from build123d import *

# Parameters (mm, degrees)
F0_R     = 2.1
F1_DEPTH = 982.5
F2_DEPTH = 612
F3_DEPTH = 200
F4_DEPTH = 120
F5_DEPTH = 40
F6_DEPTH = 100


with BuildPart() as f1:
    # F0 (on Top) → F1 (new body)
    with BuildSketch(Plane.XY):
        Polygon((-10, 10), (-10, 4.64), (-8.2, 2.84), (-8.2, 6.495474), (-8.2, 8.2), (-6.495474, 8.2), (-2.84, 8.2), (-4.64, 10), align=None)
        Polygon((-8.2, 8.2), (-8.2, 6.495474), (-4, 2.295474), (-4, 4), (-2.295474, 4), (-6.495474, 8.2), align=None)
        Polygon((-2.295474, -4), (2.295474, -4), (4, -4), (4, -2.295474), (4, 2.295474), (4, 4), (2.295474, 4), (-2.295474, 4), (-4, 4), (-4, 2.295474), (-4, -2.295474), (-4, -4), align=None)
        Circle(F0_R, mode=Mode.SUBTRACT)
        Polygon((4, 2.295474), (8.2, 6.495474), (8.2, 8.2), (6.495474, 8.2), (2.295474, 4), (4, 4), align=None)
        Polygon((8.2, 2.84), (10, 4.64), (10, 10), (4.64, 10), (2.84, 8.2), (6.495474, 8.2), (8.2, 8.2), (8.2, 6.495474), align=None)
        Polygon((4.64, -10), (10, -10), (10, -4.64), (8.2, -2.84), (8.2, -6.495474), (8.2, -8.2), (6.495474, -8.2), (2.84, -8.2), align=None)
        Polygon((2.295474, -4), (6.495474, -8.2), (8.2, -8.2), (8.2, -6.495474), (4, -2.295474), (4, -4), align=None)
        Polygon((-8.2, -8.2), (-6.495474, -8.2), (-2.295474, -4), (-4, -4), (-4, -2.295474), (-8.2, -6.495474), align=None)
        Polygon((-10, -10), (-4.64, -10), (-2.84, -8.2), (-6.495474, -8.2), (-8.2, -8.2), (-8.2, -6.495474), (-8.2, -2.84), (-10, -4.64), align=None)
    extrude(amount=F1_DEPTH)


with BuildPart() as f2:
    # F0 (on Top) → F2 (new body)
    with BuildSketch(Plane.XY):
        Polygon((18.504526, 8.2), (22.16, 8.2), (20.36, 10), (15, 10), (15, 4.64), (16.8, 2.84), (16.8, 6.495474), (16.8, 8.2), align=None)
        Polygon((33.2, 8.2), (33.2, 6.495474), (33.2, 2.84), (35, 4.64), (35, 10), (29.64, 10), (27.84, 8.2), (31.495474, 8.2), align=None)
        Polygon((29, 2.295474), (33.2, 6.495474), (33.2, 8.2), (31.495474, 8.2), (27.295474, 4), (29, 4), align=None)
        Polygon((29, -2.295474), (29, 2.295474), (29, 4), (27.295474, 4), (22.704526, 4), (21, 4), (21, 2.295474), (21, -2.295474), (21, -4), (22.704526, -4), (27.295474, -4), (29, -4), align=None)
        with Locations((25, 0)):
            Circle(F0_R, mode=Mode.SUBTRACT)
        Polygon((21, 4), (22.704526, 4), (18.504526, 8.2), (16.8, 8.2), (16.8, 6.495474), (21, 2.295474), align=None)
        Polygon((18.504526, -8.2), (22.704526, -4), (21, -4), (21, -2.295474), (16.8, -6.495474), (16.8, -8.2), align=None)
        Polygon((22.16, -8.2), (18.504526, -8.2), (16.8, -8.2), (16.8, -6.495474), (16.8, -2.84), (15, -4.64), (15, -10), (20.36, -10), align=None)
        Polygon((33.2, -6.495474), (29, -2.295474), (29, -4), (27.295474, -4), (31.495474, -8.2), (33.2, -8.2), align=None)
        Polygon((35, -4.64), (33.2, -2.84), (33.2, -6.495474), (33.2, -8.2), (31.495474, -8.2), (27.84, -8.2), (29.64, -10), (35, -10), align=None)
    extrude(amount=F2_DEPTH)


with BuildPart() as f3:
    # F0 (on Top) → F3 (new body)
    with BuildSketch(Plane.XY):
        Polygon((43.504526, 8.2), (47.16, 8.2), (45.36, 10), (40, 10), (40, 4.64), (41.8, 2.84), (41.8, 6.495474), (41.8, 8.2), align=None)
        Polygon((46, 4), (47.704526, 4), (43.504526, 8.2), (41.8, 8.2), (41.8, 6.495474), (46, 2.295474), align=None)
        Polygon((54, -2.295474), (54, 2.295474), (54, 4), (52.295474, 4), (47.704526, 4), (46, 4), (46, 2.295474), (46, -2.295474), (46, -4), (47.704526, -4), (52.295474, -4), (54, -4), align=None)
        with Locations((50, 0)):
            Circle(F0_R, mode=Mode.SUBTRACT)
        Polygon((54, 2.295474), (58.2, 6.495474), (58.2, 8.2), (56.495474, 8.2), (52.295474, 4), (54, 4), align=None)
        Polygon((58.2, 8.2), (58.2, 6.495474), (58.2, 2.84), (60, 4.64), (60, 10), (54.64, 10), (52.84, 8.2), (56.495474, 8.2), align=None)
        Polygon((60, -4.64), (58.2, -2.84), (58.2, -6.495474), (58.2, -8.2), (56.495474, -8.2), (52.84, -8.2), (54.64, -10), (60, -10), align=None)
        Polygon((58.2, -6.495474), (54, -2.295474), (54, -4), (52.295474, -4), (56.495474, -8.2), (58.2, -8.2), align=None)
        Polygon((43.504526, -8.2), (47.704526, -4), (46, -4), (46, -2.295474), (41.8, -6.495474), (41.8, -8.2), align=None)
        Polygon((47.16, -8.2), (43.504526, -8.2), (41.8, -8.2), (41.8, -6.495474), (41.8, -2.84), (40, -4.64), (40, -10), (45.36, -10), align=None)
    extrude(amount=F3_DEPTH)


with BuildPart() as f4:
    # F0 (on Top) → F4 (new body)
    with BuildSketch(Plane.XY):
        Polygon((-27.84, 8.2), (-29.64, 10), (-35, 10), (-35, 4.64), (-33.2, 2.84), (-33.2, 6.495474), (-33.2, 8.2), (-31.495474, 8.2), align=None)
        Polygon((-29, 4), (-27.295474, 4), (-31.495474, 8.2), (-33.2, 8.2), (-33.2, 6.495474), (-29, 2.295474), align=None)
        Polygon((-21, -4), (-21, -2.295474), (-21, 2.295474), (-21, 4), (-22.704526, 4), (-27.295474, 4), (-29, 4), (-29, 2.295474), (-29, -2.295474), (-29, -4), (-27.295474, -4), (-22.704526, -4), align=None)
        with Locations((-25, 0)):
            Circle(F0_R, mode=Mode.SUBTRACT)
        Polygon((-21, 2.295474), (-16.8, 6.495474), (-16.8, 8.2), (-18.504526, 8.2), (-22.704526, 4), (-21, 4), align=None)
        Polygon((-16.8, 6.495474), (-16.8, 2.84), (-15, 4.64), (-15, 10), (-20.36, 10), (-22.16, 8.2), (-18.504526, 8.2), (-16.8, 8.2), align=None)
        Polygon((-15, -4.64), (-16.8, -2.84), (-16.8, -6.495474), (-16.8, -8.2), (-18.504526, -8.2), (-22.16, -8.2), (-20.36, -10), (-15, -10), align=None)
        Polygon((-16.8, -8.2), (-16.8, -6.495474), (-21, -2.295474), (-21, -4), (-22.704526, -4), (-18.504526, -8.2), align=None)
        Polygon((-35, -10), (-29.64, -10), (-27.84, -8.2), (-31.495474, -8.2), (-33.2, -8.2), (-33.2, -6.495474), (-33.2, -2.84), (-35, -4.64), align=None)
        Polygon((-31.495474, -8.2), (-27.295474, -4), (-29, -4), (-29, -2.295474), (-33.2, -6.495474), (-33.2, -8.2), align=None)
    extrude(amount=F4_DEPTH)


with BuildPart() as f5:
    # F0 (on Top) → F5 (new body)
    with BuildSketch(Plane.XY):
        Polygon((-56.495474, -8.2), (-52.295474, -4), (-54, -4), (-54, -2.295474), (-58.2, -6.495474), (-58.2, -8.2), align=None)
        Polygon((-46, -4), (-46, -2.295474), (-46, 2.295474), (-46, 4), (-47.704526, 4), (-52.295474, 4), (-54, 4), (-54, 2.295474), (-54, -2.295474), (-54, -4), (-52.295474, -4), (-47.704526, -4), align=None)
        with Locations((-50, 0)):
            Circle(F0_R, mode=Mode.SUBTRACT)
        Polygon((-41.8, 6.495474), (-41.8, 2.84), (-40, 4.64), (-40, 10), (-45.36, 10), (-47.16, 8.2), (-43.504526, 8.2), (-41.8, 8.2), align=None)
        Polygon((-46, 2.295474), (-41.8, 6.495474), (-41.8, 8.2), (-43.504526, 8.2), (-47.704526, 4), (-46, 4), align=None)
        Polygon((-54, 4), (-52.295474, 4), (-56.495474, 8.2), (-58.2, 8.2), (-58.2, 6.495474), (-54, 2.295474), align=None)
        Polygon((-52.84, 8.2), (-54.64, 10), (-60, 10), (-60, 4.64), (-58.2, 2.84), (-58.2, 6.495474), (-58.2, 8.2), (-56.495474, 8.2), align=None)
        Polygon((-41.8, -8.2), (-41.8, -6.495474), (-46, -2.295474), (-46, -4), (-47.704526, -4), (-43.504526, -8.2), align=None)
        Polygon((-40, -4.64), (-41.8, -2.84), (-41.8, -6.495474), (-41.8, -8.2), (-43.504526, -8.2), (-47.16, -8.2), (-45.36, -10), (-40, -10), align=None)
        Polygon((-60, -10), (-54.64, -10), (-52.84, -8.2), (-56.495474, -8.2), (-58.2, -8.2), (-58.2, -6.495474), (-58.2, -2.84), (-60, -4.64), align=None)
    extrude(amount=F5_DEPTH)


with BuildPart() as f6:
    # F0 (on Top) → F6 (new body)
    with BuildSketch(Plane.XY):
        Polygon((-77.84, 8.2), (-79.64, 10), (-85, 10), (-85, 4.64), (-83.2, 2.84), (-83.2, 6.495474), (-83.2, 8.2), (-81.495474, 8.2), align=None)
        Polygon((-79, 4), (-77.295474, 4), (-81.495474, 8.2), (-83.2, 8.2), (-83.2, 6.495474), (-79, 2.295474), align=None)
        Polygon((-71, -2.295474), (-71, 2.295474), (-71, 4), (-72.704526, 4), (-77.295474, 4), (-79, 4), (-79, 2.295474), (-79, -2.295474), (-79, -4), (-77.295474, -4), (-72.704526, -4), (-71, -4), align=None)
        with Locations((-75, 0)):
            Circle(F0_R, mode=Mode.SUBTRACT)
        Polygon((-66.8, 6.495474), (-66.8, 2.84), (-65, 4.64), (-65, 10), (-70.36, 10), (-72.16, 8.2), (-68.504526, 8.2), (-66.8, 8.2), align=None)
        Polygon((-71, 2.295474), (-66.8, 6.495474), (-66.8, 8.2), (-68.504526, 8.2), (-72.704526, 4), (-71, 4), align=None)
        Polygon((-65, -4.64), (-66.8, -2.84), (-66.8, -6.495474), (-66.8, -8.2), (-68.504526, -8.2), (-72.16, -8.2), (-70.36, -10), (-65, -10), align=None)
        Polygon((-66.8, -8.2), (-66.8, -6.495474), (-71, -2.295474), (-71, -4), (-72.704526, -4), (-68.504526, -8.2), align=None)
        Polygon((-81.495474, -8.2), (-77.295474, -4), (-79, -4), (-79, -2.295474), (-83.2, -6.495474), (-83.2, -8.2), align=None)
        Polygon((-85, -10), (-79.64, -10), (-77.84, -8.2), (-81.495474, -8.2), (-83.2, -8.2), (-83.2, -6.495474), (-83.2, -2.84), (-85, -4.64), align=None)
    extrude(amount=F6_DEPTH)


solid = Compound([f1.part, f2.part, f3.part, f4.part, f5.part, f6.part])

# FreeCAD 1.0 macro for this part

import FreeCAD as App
import Part
import Sketcher

V = App.Vector
Q = App.Units.Quantity


def add_polygon(sketch, points):
    """Adds a closed chain of lines whose ends are joined by coincident constraints."""
    first, n = sketch.GeometryCount, len(points)
    for a, b in zip(points, points[1:] + points[:1]):
        sketch.addGeometry(Part.LineSegment(App.Vector(*a, 0), App.Vector(*b, 0)), False)
    for i in range(n):
        sketch.addConstraint(Sketcher.Constraint("Coincident", first + i, 2, first + (i + 1) % n, 1))

doc = App.newDocument("Part")
params = doc.addObject("Spreadsheet::Sheet", "Params")
for row, (alias, value) in enumerate([
    ("sketch1_diameter", "4.2 mm"),
    ("sketch1_width", "5.36 mm"),
    ("pad1_length", "982.5 mm"),
    ("sketch2_diameter", "4.2 mm"),
    ("sketch2_width", "5.36 mm"),
    ("pad2_length", "612 mm"),
    ("sketch3_diameter", "4.2 mm"),
    ("sketch3_width", "5.36 mm"),
    ("pad3_length", "200 mm"),
    ("sketch4_diameter", "4.2 mm"),
    ("sketch4_width", "5.36 mm"),
    ("pad4_length", "120 mm"),
    ("sketch5_diameter", "4.2 mm"),
    ("sketch5_width", "5.36 mm"),
    ("pad5_length", "40 mm"),
    ("sketch6_diameter", "4.2 mm"),
    ("sketch6_width", "5.36 mm"),
    ("pad6_length", "100 mm"),
], start=1):
    params.set(f"A{row}", alias)
    params.set(f"B{row}", "=" + value)
    params.setAlias(f"B{row}", alias)

body = doc.addObject("PartDesign::Body", "Body")

sketch1 = body.newObject("Sketcher::SketchObject", "Sketch")
sketch1.AttachmentSupport = (doc.getObject("XY_Plane"), [""])
sketch1.MapMode = "FlatFace"
add_polygon(sketch1, [(-10, 10), (-10, 4.6), (-8.2, 2.8), (-8.2, 6.5), (-4, 2.3), (-4, -2.3), (-8.2, -6.5), (-8.2, -2.8), (-10, -4.6), (-10, -10), (-4.6, -10), (-2.8, -8.2), (-6.5, -8.2), (-2.3, -4), (2.3, -4), (6.5, -8.2), (2.8, -8.2), (4.6, -10), (10, -10), (10, -4.6), (8.2, -2.8), (8.2, -6.5), (4, -2.3), (4, 2.3), (8.2, 6.5), (8.2, 2.8), (10, 4.6), (10, 10), (4.6, 10), (2.8, 8.2), (6.5, 8.2), (2.3, 4), (-2.3, 4), (-6.5, 8.2), (-2.8, 8.2), (-4.6, 10)])
sketch1.addGeometry(Part.Circle(V(0, 0, 0), V(0, 0, 1), 2.1), False)
sketch1.addConstraint(Sketcher.Constraint("Vertical", 0))
sketch1.addConstraint(Sketcher.Constraint("Vertical", 2))
sketch1.addConstraint(Sketcher.Constraint("Vertical", 4))
sketch1.addConstraint(Sketcher.Constraint("Vertical", 6))
sketch1.addConstraint(Sketcher.Constraint("Vertical", 8))
sketch1.addConstraint(Sketcher.Constraint("Horizontal", 9))
sketch1.addConstraint(Sketcher.Constraint("Horizontal", 11))
sketch1.addConstraint(Sketcher.Constraint("Horizontal", 13))
sketch1.addConstraint(Sketcher.Constraint("Horizontal", 15))
sketch1.addConstraint(Sketcher.Constraint("Horizontal", 17))
sketch1.addConstraint(Sketcher.Constraint("Vertical", 18))
sketch1.addConstraint(Sketcher.Constraint("Vertical", 20))
sketch1.addConstraint(Sketcher.Constraint("Vertical", 22))
sketch1.addConstraint(Sketcher.Constraint("Vertical", 24))
sketch1.addConstraint(Sketcher.Constraint("Vertical", 26))
sketch1.addConstraint(Sketcher.Constraint("Horizontal", 27))
sketch1.addConstraint(Sketcher.Constraint("Horizontal", 29))
sketch1.addConstraint(Sketcher.Constraint("Horizontal", 31))
sketch1.addConstraint(Sketcher.Constraint("Horizontal", 33))
sketch1.addConstraint(Sketcher.Constraint("Horizontal", 35))
sketch1.addConstraint(Sketcher.Constraint("Coincident", 36, 3, -1, 1))
sketch1.addConstraint(Sketcher.Constraint("Symmetric", 0, 2, 18, 2, -1, 1))
sketch1.addConstraint(Sketcher.Constraint("Symmetric", 1, 2, 19, 2, -1, 1))
sketch1.addConstraint(Sketcher.Constraint("Symmetric", 3, 2, 21, 2, -1, 1))
sketch1.addConstraint(Sketcher.Constraint("Symmetric", 5, 2, 23, 2, -1, 1))
sketch1.addConstraint(Sketcher.Constraint("Symmetric", 7, 2, 25, 2, -1, 1))
sketch1.addConstraint(Sketcher.Constraint("Symmetric", 9, 2, 27, 2, -1, 1))
sketch1.addConstraint(Sketcher.Constraint("Symmetric", 10, 2, 28, 2, -1, 1))
sketch1.addConstraint(Sketcher.Constraint("Symmetric", 12, 2, 30, 2, -1, 1))
sketch1.addConstraint(Sketcher.Constraint("Symmetric", 14, 2, 32, 2, -1, 1))
sketch1.addConstraint(Sketcher.Constraint("Symmetric", 16, 2, 34, 2, -1, 1))
sketch1.addConstraint(Sketcher.Constraint("Symmetric", 11, 2, 14, 2, -2))
sketch1.addConstraint(Sketcher.Constraint("Symmetric", 9, 2, 16, 2, -2))
sketch1.addConstraint(Sketcher.Constraint("Symmetric", 7, 2, 18, 2, -2))
sketch1.addConstraint(Sketcher.Constraint("Symmetric", 6, 2, 19, 2, -2))
sketch1.addConstraint(Sketcher.Constraint("Parallel", 1, 3))
sketch1.addConstraint(Sketcher.Constraint("Perpendicular", 3, 5))
sketch1.addConstraint(Sketcher.Constraint("Parallel", 5, 7))
sketch1.addConstraint(Sketcher.Constraint("Parallel", 7, 10))
sketch1.addConstraint(Sketcher.Constraint("Parallel", 10, 12))
sketch1.addConstraint(Sketcher.Constraint("Perpendicular", 12, 14))
sketch1.addConstraint(Sketcher.Constraint("Parallel", 14, 16))
sketch1.addConstraint(Sketcher.Constraint("Parallel", 19, 21))
sketch1.addConstraint(Sketcher.Constraint("Perpendicular", 21, 23))
sketch1.addConstraint(Sketcher.Constraint("Parallel", 23, 25))
sketch1.addConstraint(Sketcher.Constraint("Parallel", 28, 30))
sketch1.addConstraint(Sketcher.Constraint("Perpendicular", 30, 32))
sketch1.addConstraint(Sketcher.Constraint("Parallel", 32, 34))
sketch1.addConstraint(Sketcher.Constraint("Horizontal", 5, 2, 20, 2))
sketch1.addConstraint(Sketcher.Constraint("Equal", 35, 0))
sketch1.addConstraint(Sketcher.Constraint("Equal", 33, 2))
sketch1.addConstraint(Sketcher.Constraint("Equal", 31, 4))
sketch1.addConstraint(Sketcher.Constraint("Equal", 7, 10))
sketch1.addConstraint(Sketcher.Constraint("Equal", 5, 12))
sketch1.addConstraint(Sketcher.Constraint("Diameter", 36, Q("4.2 mm")))
sketch1.addConstraint(Sketcher.Constraint("DistanceX", 0, 2, -1, 1, Q("10 mm")))
sketch1.addConstraint(Sketcher.Constraint("DistanceX", 3, 2, -1, 1, Q("4 mm")))
sketch1.addConstraint(Sketcher.Constraint("DistanceX", 9, 1, 9, 2, Q("5.36 mm")))
sketch1.addConstraint(Sketcher.Constraint("DistanceX", 1, 2, -1, 1, Q("8.2 mm")))
sketch1.addConstraint(Sketcher.Constraint("DistanceX", 11, 2, 11, 1, Q("3.655474 mm")))
sketch1.setExpression("Constraints[90]", "Params.sketch1_diameter")
sketch1.setExpression("Constraints[93]", "Params.sketch1_width")
pad1 = body.newObject("PartDesign::Pad", "Pad")
pad1.Profile = sketch1
pad1.setExpression("Length", "Params.pad1_length")
body2 = doc.addObject("PartDesign::Body", "Body001")

sketch2 = body2.newObject("Sketcher::SketchObject", "Sketch001")
sketch2.AttachmentSupport = (doc.getObject("XY_Plane001"), [""])
sketch2.MapMode = "FlatFace"
add_polygon(sketch2, [(22.2, 8.2), (20.4, 10), (15, 10), (15, 4.6), (16.8, 2.8), (16.8, 6.5), (21, 2.3), (21, -2.3), (16.8, -6.5), (16.8, -2.8), (15, -4.6), (15, -10), (20.4, -10), (22.2, -8.2), (18.5, -8.2), (22.7, -4), (27.3, -4), (31.5, -8.2), (27.8, -8.2), (29.6, -10), (35, -10), (35, -4.6), (33.2, -2.8), (33.2, -6.5), (29, -2.3), (29, 2.3), (33.2, 6.5), (33.2, 2.8), (35, 4.6), (35, 10), (29.6, 10), (27.8, 8.2), (31.5, 8.2), (27.3, 4), (22.7, 4), (18.5, 8.2)])
sketch2.addGeometry(Part.Circle(V(25, 0, 0), V(0, 0, 1), 2.1), False)
sketch2.addConstraint(Sketcher.Constraint("Horizontal", 1))
sketch2.addConstraint(Sketcher.Constraint("Vertical", 2))
sketch2.addConstraint(Sketcher.Constraint("Vertical", 4))
sketch2.addConstraint(Sketcher.Constraint("Vertical", 6))
sketch2.addConstraint(Sketcher.Constraint("Vertical", 8))
sketch2.addConstraint(Sketcher.Constraint("Vertical", 10))
sketch2.addConstraint(Sketcher.Constraint("Horizontal", 11))
sketch2.addConstraint(Sketcher.Constraint("Horizontal", 13))
sketch2.addConstraint(Sketcher.Constraint("Horizontal", 15))
sketch2.addConstraint(Sketcher.Constraint("Horizontal", 17))
sketch2.addConstraint(Sketcher.Constraint("Horizontal", 19))
sketch2.addConstraint(Sketcher.Constraint("Vertical", 20))
sketch2.addConstraint(Sketcher.Constraint("Vertical", 22))
sketch2.addConstraint(Sketcher.Constraint("Vertical", 24))
sketch2.addConstraint(Sketcher.Constraint("Vertical", 26))
sketch2.addConstraint(Sketcher.Constraint("Vertical", 28))
sketch2.addConstraint(Sketcher.Constraint("Horizontal", 29))
sketch2.addConstraint(Sketcher.Constraint("Horizontal", 31))
sketch2.addConstraint(Sketcher.Constraint("Horizontal", 33))
sketch2.addConstraint(Sketcher.Constraint("Horizontal", 35))
sketch2.addConstraint(Sketcher.Constraint("Symmetric", 4, 2, 7, 2, -1))
sketch2.addConstraint(Sketcher.Constraint("Symmetric", 2, 2, 9, 2, -1))
sketch2.addConstraint(Sketcher.Constraint("Symmetric", 0, 2, 11, 2, -1))
sketch2.addConstraint(Sketcher.Constraint("Symmetric", 22, 2, 25, 2, -1))
sketch2.addConstraint(Sketcher.Constraint("Symmetric", 20, 2, 27, 2, -1))
sketch2.addConstraint(Sketcher.Constraint("Symmetric", 18, 2, 29, 2, -1))
sketch2.addConstraint(Sketcher.Constraint("Symmetric", 17, 2, 30, 2, -1))
sketch2.addConstraint(Sketcher.Constraint("Symmetric", 15, 2, 32, 2, -1))
sketch2.addConstraint(Sketcher.Constraint("Symmetric", 13, 2, 34, 2, -1))
sketch2.addConstraint(Sketcher.Constraint("PointOnObject", 36, 3, -1))
sketch2.addConstraint(Sketcher.Constraint("Parallel", 0, 3))
sketch2.addConstraint(Sketcher.Constraint("Parallel", 3, 5))
sketch2.addConstraint(Sketcher.Constraint("Perpendicular", 5, 7))
sketch2.addConstraint(Sketcher.Constraint("Parallel", 7, 9))
sketch2.addConstraint(Sketcher.Constraint("Parallel", 9, 12))
sketch2.addConstraint(Sketcher.Constraint("Parallel", 12, 14))
sketch2.addConstraint(Sketcher.Constraint("Perpendicular", 14, 16))
sketch2.addConstraint(Sketcher.Constraint("Parallel", 16, 18))
sketch2.addConstraint(Sketcher.Constraint("Parallel", 18, 21))
sketch2.addConstraint(Sketcher.Constraint("Parallel", 21, 23))
sketch2.addConstraint(Sketcher.Constraint("Perpendicular", 23, 25))
sketch2.addConstraint(Sketcher.Constraint("Parallel", 25, 27))
sketch2.addConstraint(Sketcher.Constraint("Parallel", 27, 30))
sketch2.addConstraint(Sketcher.Constraint("Parallel", 30, 32))
sketch2.addConstraint(Sketcher.Constraint("Perpendicular", 32, 34))
sketch2.addConstraint(Sketcher.Constraint("Horizontal", 13, 2, 16, 2))
sketch2.addConstraint(Sketcher.Constraint("Horizontal", 11, 2, 18, 2))
sketch2.addConstraint(Sketcher.Constraint("Horizontal", 9, 2, 20, 2))
sketch2.addConstraint(Sketcher.Constraint("Horizontal", 8, 2, 21, 2))
sketch2.addConstraint(Sketcher.Constraint("Horizontal", 7, 2, 22, 2))
sketch2.addConstraint(Sketcher.Constraint("Horizontal", 6, 2, 23, 2))
sketch2.addConstraint(Sketcher.Constraint("Equal", 13, 17))
sketch2.addConstraint(Sketcher.Constraint("Equal", 11, 19))
sketch2.addConstraint(Sketcher.Constraint("Equal", 29, 2))
sketch2.addConstraint(Sketcher.Constraint("Equal", 35, 4))
sketch2.addConstraint(Sketcher.Constraint("Equal", 33, 6))
sketch2.addConstraint(Sketcher.Constraint("Equal", 0, 3))
sketch2.addConstraint(Sketcher.Constraint("Equal", 7, 14))
sketch2.addConstraint(Sketcher.Constraint("Diameter", 36, Q("4.2 mm")))
sketch2.addConstraint(Sketcher.Constraint("DistanceX", -1, 1, 36, 3, Q("25 mm")))
sketch2.addConstraint(Sketcher.Constraint("DistanceY", -1, 1, 0, 2, Q("10 mm")))
sketch2.addConstraint(Sketcher.Constraint("DistanceX", -1, 1, 1, 2, Q("15 mm")))
sketch2.addConstraint(Sketcher.Constraint("DistanceX", -1, 1, 5, 2, Q("21 mm")))
sketch2.addConstraint(Sketcher.Constraint("DistanceX", 1, 2, 1, 1, Q("5.36 mm")))
sketch2.addConstraint(Sketcher.Constraint("DistanceX", -1, 1, 3, 2, Q("16.8 mm")))
sketch2.addConstraint(Sketcher.Constraint("DistanceX", 13, 2, 13, 1, Q("3.655474 mm")))
sketch2.setExpression("Constraints[94]", "Params.sketch2_diameter")
sketch2.setExpression("Constraints[99]", "Params.sketch2_width")
pad2 = body2.newObject("PartDesign::Pad", "Pad001")
pad2.Profile = sketch2
pad2.setExpression("Length", "Params.pad2_length")
body3 = doc.addObject("PartDesign::Body", "Body002")

sketch3 = body3.newObject("Sketcher::SketchObject", "Sketch002")
sketch3.AttachmentSupport = (doc.getObject("XY_Plane002"), [""])
sketch3.MapMode = "FlatFace"
add_polygon(sketch3, [(47.2, 8.2), (45.4, 10), (40, 10), (40, 4.6), (41.8, 2.8), (41.8, 6.5), (46, 2.3), (46, -2.3), (41.8, -6.5), (41.8, -2.8), (40, -4.6), (40, -10), (45.4, -10), (47.2, -8.2), (43.5, -8.2), (47.7, -4), (52.3, -4), (56.5, -8.2), (52.8, -8.2), (54.6, -10), (60, -10), (60, -4.6), (58.2, -2.8), (58.2, -6.5), (54, -2.3), (54, 2.3), (58.2, 6.5), (58.2, 2.8), (60, 4.6), (60, 10), (54.6, 10), (52.8, 8.2), (56.5, 8.2), (52.3, 4), (47.7, 4), (43.5, 8.2)])
sketch3.addGeometry(Part.Circle(V(50, 0, 0), V(0, 0, 1), 2.1), False)
sketch3.addConstraint(Sketcher.Constraint("Horizontal", 1))
sketch3.addConstraint(Sketcher.Constraint("Vertical", 2))
sketch3.addConstraint(Sketcher.Constraint("Vertical", 4))
sketch3.addConstraint(Sketcher.Constraint("Vertical", 6))
sketch3.addConstraint(Sketcher.Constraint("Vertical", 8))
sketch3.addConstraint(Sketcher.Constraint("Vertical", 10))
sketch3.addConstraint(Sketcher.Constraint("Horizontal", 11))
sketch3.addConstraint(Sketcher.Constraint("Horizontal", 13))
sketch3.addConstraint(Sketcher.Constraint("Horizontal", 15))
sketch3.addConstraint(Sketcher.Constraint("Horizontal", 17))
sketch3.addConstraint(Sketcher.Constraint("Horizontal", 19))
sketch3.addConstraint(Sketcher.Constraint("Vertical", 20))
sketch3.addConstraint(Sketcher.Constraint("Vertical", 22))
sketch3.addConstraint(Sketcher.Constraint("Vertical", 24))
sketch3.addConstraint(Sketcher.Constraint("Vertical", 26))
sketch3.addConstraint(Sketcher.Constraint("Vertical", 28))
sketch3.addConstraint(Sketcher.Constraint("Horizontal", 29))
sketch3.addConstraint(Sketcher.Constraint("Horizontal", 31))
sketch3.addConstraint(Sketcher.Constraint("Horizontal", 33))
sketch3.addConstraint(Sketcher.Constraint("Horizontal", 35))
sketch3.addConstraint(Sketcher.Constraint("Symmetric", 4, 2, 7, 2, -1))
sketch3.addConstraint(Sketcher.Constraint("Symmetric", 2, 2, 9, 2, -1))
sketch3.addConstraint(Sketcher.Constraint("Symmetric", 0, 2, 11, 2, -1))
sketch3.addConstraint(Sketcher.Constraint("Symmetric", 22, 2, 25, 2, -1))
sketch3.addConstraint(Sketcher.Constraint("Symmetric", 20, 2, 27, 2, -1))
sketch3.addConstraint(Sketcher.Constraint("Symmetric", 18, 2, 29, 2, -1))
sketch3.addConstraint(Sketcher.Constraint("Symmetric", 17, 2, 30, 2, -1))
sketch3.addConstraint(Sketcher.Constraint("Symmetric", 15, 2, 32, 2, -1))
sketch3.addConstraint(Sketcher.Constraint("Symmetric", 13, 2, 34, 2, -1))
sketch3.addConstraint(Sketcher.Constraint("PointOnObject", 36, 3, -1))
sketch3.addConstraint(Sketcher.Constraint("Parallel", 0, 3))
sketch3.addConstraint(Sketcher.Constraint("Parallel", 3, 5))
sketch3.addConstraint(Sketcher.Constraint("Perpendicular", 5, 7))
sketch3.addConstraint(Sketcher.Constraint("Parallel", 7, 9))
sketch3.addConstraint(Sketcher.Constraint("Parallel", 9, 12))
sketch3.addConstraint(Sketcher.Constraint("Parallel", 12, 14))
sketch3.addConstraint(Sketcher.Constraint("Perpendicular", 14, 16))
sketch3.addConstraint(Sketcher.Constraint("Parallel", 16, 18))
sketch3.addConstraint(Sketcher.Constraint("Parallel", 18, 21))
sketch3.addConstraint(Sketcher.Constraint("Parallel", 21, 23))
sketch3.addConstraint(Sketcher.Constraint("Perpendicular", 23, 25))
sketch3.addConstraint(Sketcher.Constraint("Parallel", 25, 27))
sketch3.addConstraint(Sketcher.Constraint("Parallel", 27, 30))
sketch3.addConstraint(Sketcher.Constraint("Parallel", 30, 32))
sketch3.addConstraint(Sketcher.Constraint("Perpendicular", 32, 34))
sketch3.addConstraint(Sketcher.Constraint("Horizontal", 13, 2, 16, 2))
sketch3.addConstraint(Sketcher.Constraint("Horizontal", 11, 2, 18, 2))
sketch3.addConstraint(Sketcher.Constraint("Horizontal", 9, 2, 20, 2))
sketch3.addConstraint(Sketcher.Constraint("Horizontal", 8, 2, 21, 2))
sketch3.addConstraint(Sketcher.Constraint("Horizontal", 7, 2, 22, 2))
sketch3.addConstraint(Sketcher.Constraint("Horizontal", 6, 2, 23, 2))
sketch3.addConstraint(Sketcher.Constraint("Equal", 13, 17))
sketch3.addConstraint(Sketcher.Constraint("Equal", 11, 19))
sketch3.addConstraint(Sketcher.Constraint("Equal", 29, 2))
sketch3.addConstraint(Sketcher.Constraint("Equal", 35, 4))
sketch3.addConstraint(Sketcher.Constraint("Equal", 33, 6))
sketch3.addConstraint(Sketcher.Constraint("Equal", 0, 3))
sketch3.addConstraint(Sketcher.Constraint("Equal", 7, 14))
sketch3.addConstraint(Sketcher.Constraint("Diameter", 36, Q("4.2 mm")))
sketch3.addConstraint(Sketcher.Constraint("DistanceX", -1, 1, 36, 3, Q("50 mm")))
sketch3.addConstraint(Sketcher.Constraint("DistanceY", -1, 1, 0, 2, Q("10 mm")))
sketch3.addConstraint(Sketcher.Constraint("DistanceX", -1, 1, 1, 2, Q("40 mm")))
sketch3.addConstraint(Sketcher.Constraint("DistanceX", -1, 1, 5, 2, Q("46 mm")))
sketch3.addConstraint(Sketcher.Constraint("DistanceX", 1, 2, 1, 1, Q("5.36 mm")))
sketch3.addConstraint(Sketcher.Constraint("DistanceX", -1, 1, 3, 2, Q("41.8 mm")))
sketch3.addConstraint(Sketcher.Constraint("DistanceX", 13, 2, 13, 1, Q("3.655474 mm")))
sketch3.setExpression("Constraints[94]", "Params.sketch3_diameter")
sketch3.setExpression("Constraints[99]", "Params.sketch3_width")
pad3 = body3.newObject("PartDesign::Pad", "Pad002")
pad3.Profile = sketch3
pad3.setExpression("Length", "Params.pad3_length")
body4 = doc.addObject("PartDesign::Body", "Body003")

sketch4 = body4.newObject("Sketcher::SketchObject", "Sketch003")
sketch4.AttachmentSupport = (doc.getObject("XY_Plane003"), [""])
sketch4.MapMode = "FlatFace"
add_polygon(sketch4, [(-27.8, 8.2), (-29.6, 10), (-35, 10), (-35, 4.6), (-33.2, 2.8), (-33.2, 6.5), (-29, 2.3), (-29, -2.3), (-33.2, -6.5), (-33.2, -2.8), (-35, -4.6), (-35, -10), (-29.6, -10), (-27.8, -8.2), (-31.5, -8.2), (-27.3, -4), (-22.7, -4), (-18.5, -8.2), (-22.2, -8.2), (-20.4, -10), (-15, -10), (-15, -4.6), (-16.8, -2.8), (-16.8, -6.5), (-21, -2.3), (-21, 2.3), (-16.8, 6.5), (-16.8, 2.8), (-15, 4.6), (-15, 10), (-20.4, 10), (-22.2, 8.2), (-18.5, 8.2), (-22.7, 4), (-27.3, 4), (-31.5, 8.2)])
sketch4.addGeometry(Part.Circle(V(-25, 0, 0), V(0, 0, 1), 2.1), False)
sketch4.addConstraint(Sketcher.Constraint("Horizontal", 1))
sketch4.addConstraint(Sketcher.Constraint("Vertical", 2))
sketch4.addConstraint(Sketcher.Constraint("Vertical", 4))
sketch4.addConstraint(Sketcher.Constraint("Vertical", 6))
sketch4.addConstraint(Sketcher.Constraint("Vertical", 8))
sketch4.addConstraint(Sketcher.Constraint("Vertical", 10))
sketch4.addConstraint(Sketcher.Constraint("Horizontal", 11))
sketch4.addConstraint(Sketcher.Constraint("Horizontal", 13))
sketch4.addConstraint(Sketcher.Constraint("Horizontal", 15))
sketch4.addConstraint(Sketcher.Constraint("Horizontal", 17))
sketch4.addConstraint(Sketcher.Constraint("Horizontal", 19))
sketch4.addConstraint(Sketcher.Constraint("Vertical", 20))
sketch4.addConstraint(Sketcher.Constraint("Vertical", 22))
sketch4.addConstraint(Sketcher.Constraint("Vertical", 24))
sketch4.addConstraint(Sketcher.Constraint("Vertical", 26))
sketch4.addConstraint(Sketcher.Constraint("Vertical", 28))
sketch4.addConstraint(Sketcher.Constraint("Horizontal", 29))
sketch4.addConstraint(Sketcher.Constraint("Horizontal", 31))
sketch4.addConstraint(Sketcher.Constraint("Horizontal", 33))
sketch4.addConstraint(Sketcher.Constraint("Horizontal", 35))
sketch4.addConstraint(Sketcher.Constraint("Symmetric", 4, 2, 7, 2, -1))
sketch4.addConstraint(Sketcher.Constraint("Symmetric", 2, 2, 9, 2, -1))
sketch4.addConstraint(Sketcher.Constraint("Symmetric", 0, 2, 11, 2, -1))
sketch4.addConstraint(Sketcher.Constraint("Symmetric", 22, 2, 25, 2, -1))
sketch4.addConstraint(Sketcher.Constraint("Symmetric", 20, 2, 27, 2, -1))
sketch4.addConstraint(Sketcher.Constraint("Symmetric", 18, 2, 29, 2, -1))
sketch4.addConstraint(Sketcher.Constraint("Symmetric", 17, 2, 30, 2, -1))
sketch4.addConstraint(Sketcher.Constraint("Symmetric", 15, 2, 32, 2, -1))
sketch4.addConstraint(Sketcher.Constraint("Symmetric", 13, 2, 34, 2, -1))
sketch4.addConstraint(Sketcher.Constraint("PointOnObject", 36, 3, -1))
sketch4.addConstraint(Sketcher.Constraint("Parallel", 0, 3))
sketch4.addConstraint(Sketcher.Constraint("Parallel", 3, 5))
sketch4.addConstraint(Sketcher.Constraint("Perpendicular", 5, 7))
sketch4.addConstraint(Sketcher.Constraint("Parallel", 7, 9))
sketch4.addConstraint(Sketcher.Constraint("Parallel", 9, 12))
sketch4.addConstraint(Sketcher.Constraint("Parallel", 12, 14))
sketch4.addConstraint(Sketcher.Constraint("Perpendicular", 14, 16))
sketch4.addConstraint(Sketcher.Constraint("Parallel", 16, 18))
sketch4.addConstraint(Sketcher.Constraint("Parallel", 18, 21))
sketch4.addConstraint(Sketcher.Constraint("Parallel", 21, 23))
sketch4.addConstraint(Sketcher.Constraint("Perpendicular", 23, 25))
sketch4.addConstraint(Sketcher.Constraint("Parallel", 25, 27))
sketch4.addConstraint(Sketcher.Constraint("Parallel", 27, 30))
sketch4.addConstraint(Sketcher.Constraint("Parallel", 30, 32))
sketch4.addConstraint(Sketcher.Constraint("Perpendicular", 32, 34))
sketch4.addConstraint(Sketcher.Constraint("Horizontal", 13, 2, 16, 2))
sketch4.addConstraint(Sketcher.Constraint("Horizontal", 11, 2, 18, 2))
sketch4.addConstraint(Sketcher.Constraint("Horizontal", 9, 2, 20, 2))
sketch4.addConstraint(Sketcher.Constraint("Horizontal", 8, 2, 21, 2))
sketch4.addConstraint(Sketcher.Constraint("Horizontal", 7, 2, 22, 2))
sketch4.addConstraint(Sketcher.Constraint("Horizontal", 6, 2, 23, 2))
sketch4.addConstraint(Sketcher.Constraint("Equal", 13, 17))
sketch4.addConstraint(Sketcher.Constraint("Equal", 11, 19))
sketch4.addConstraint(Sketcher.Constraint("Equal", 29, 2))
sketch4.addConstraint(Sketcher.Constraint("Equal", 35, 4))
sketch4.addConstraint(Sketcher.Constraint("Equal", 33, 6))
sketch4.addConstraint(Sketcher.Constraint("Equal", 0, 3))
sketch4.addConstraint(Sketcher.Constraint("Equal", 7, 14))
sketch4.addConstraint(Sketcher.Constraint("Diameter", 36, Q("4.2 mm")))
sketch4.addConstraint(Sketcher.Constraint("DistanceX", 36, 3, -1, 1, Q("25 mm")))
sketch4.addConstraint(Sketcher.Constraint("DistanceY", -1, 1, 0, 2, Q("10 mm")))
sketch4.addConstraint(Sketcher.Constraint("DistanceX", 1, 2, -1, 1, Q("35 mm")))
sketch4.addConstraint(Sketcher.Constraint("DistanceX", 5, 2, -1, 1, Q("29 mm")))
sketch4.addConstraint(Sketcher.Constraint("DistanceX", 1, 2, 1, 1, Q("5.36 mm")))
sketch4.addConstraint(Sketcher.Constraint("DistanceX", 3, 2, -1, 1, Q("33.2 mm")))
sketch4.addConstraint(Sketcher.Constraint("DistanceX", 13, 2, 13, 1, Q("3.655474 mm")))
sketch4.setExpression("Constraints[94]", "Params.sketch4_diameter")
sketch4.setExpression("Constraints[99]", "Params.sketch4_width")
pad4 = body4.newObject("PartDesign::Pad", "Pad003")
pad4.Profile = sketch4
pad4.setExpression("Length", "Params.pad4_length")
body5 = doc.addObject("PartDesign::Body", "Body004")

sketch5 = body5.newObject("Sketcher::SketchObject", "Sketch004")
sketch5.AttachmentSupport = (doc.getObject("XY_Plane004"), [""])
sketch5.MapMode = "FlatFace"
add_polygon(sketch5, [(-56.5, -8.2), (-52.3, -4), (-47.7, -4), (-43.5, -8.2), (-47.2, -8.2), (-45.4, -10), (-40, -10), (-40, -4.6), (-41.8, -2.8), (-41.8, -6.5), (-46, -2.3), (-46, 2.3), (-41.8, 6.5), (-41.8, 2.8), (-40, 4.6), (-40, 10), (-45.4, 10), (-47.2, 8.2), (-43.5, 8.2), (-47.7, 4), (-52.3, 4), (-56.5, 8.2), (-52.8, 8.2), (-54.6, 10), (-60, 10), (-60, 4.6), (-58.2, 2.8), (-58.2, 6.5), (-54, 2.3), (-54, -2.3), (-58.2, -6.5), (-58.2, -2.8), (-60, -4.6), (-60, -10), (-54.6, -10), (-52.8, -8.2)])
sketch5.addGeometry(Part.Circle(V(-50, 0, 0), V(0, 0, 1), 2.1), False)
sketch5.addConstraint(Sketcher.Constraint("Horizontal", 1))
sketch5.addConstraint(Sketcher.Constraint("Horizontal", 3))
sketch5.addConstraint(Sketcher.Constraint("Horizontal", 5))
sketch5.addConstraint(Sketcher.Constraint("Vertical", 6))
sketch5.addConstraint(Sketcher.Constraint("Vertical", 8))
sketch5.addConstraint(Sketcher.Constraint("Vertical", 10))
sketch5.addConstraint(Sketcher.Constraint("Vertical", 12))
sketch5.addConstraint(Sketcher.Constraint("Vertical", 14))
sketch5.addConstraint(Sketcher.Constraint("Horizontal", 15))
sketch5.addConstraint(Sketcher.Constraint("Horizontal", 17))
sketch5.addConstraint(Sketcher.Constraint("Horizontal", 19))
sketch5.addConstraint(Sketcher.Constraint("Horizontal", 21))
sketch5.addConstraint(Sketcher.Constraint("Horizontal", 23))
sketch5.addConstraint(Sketcher.Constraint("Vertical", 24))
sketch5.addConstraint(Sketcher.Constraint("Vertical", 26))
sketch5.addConstraint(Sketcher.Constraint("Vertical", 28))
sketch5.addConstraint(Sketcher.Constraint("Vertical", 30))
sketch5.addConstraint(Sketcher.Constraint("Vertical", 32))
sketch5.addConstraint(Sketcher.Constraint("Horizontal", 33))
sketch5.addConstraint(Sketcher.Constraint("Horizontal", 35))
sketch5.addConstraint(Sketcher.Constraint("Symmetric", 8, 2, 11, 2, -1))
sketch5.addConstraint(Sketcher.Constraint("Symmetric", 6, 2, 13, 2, -1))
sketch5.addConstraint(Sketcher.Constraint("Symmetric", 4, 2, 15, 2, -1))
sketch5.addConstraint(Sketcher.Constraint("Symmetric", 3, 2, 16, 2, -1))
sketch5.addConstraint(Sketcher.Constraint("Symmetric", 1, 2, 18, 2, -1))
sketch5.addConstraint(Sketcher.Constraint("Symmetric", 26, 2, 29, 2, -1))
sketch5.addConstraint(Sketcher.Constraint("Symmetric", 24, 2, 31, 2, -1))
sketch5.addConstraint(Sketcher.Constraint("Symmetric", 22, 2, 33, 2, -1))
sketch5.addConstraint(Sketcher.Constraint("Symmetric", 21, 2, 34, 2, -1))
sketch5.addConstraint(Sketcher.Constraint("PointOnObject", 36, 3, -1))
sketch5.addConstraint(Sketcher.Constraint("Perpendicular", 0, 2))
sketch5.addConstraint(Sketcher.Constraint("Parallel", 2, 4))
sketch5.addConstraint(Sketcher.Constraint("Parallel", 4, 7))
sketch5.addConstraint(Sketcher.Constraint("Parallel", 7, 9))
sketch5.addConstraint(Sketcher.Constraint("Perpendicular", 9, 11))
sketch5.addConstraint(Sketcher.Constraint("Parallel", 11, 13))
sketch5.addConstraint(Sketcher.Constraint("Parallel", 13, 16))
sketch5.addConstraint(Sketcher.Constraint("Parallel", 16, 18))
sketch5.addConstraint(Sketcher.Constraint("Perpendicular", 18, 20))
sketch5.addConstraint(Sketcher.Constraint("Parallel", 20, 22))
sketch5.addConstraint(Sketcher.Constraint("Parallel", 22, 25))
sketch5.addConstraint(Sketcher.Constraint("Parallel", 25, 27))
sketch5.addConstraint(Sketcher.Constraint("Perpendicular", 27, 29))
sketch5.addConstraint(Sketcher.Constraint("Parallel", 29, 31))
sketch5.addConstraint(Sketcher.Constraint("Horizontal", 17, 2, 20, 2))
sketch5.addConstraint(Sketcher.Constraint("Horizontal", 15, 2, 22, 2))
sketch5.addConstraint(Sketcher.Constraint("Horizontal", 13, 2, 24, 2))
sketch5.addConstraint(Sketcher.Constraint("Horizontal", 12, 2, 25, 2))
sketch5.addConstraint(Sketcher.Constraint("Horizontal", 11, 2, 26, 2))
sketch5.addConstraint(Sketcher.Constraint("Horizontal", 10, 2, 27, 2))
sketch5.addConstraint(Sketcher.Constraint("Vertical", 0, 2, 19, 2))
sketch5.addConstraint(Sketcher.Constraint("Equal", 17, 21))
sketch5.addConstraint(Sketcher.Constraint("Equal", 15, 23))
sketch5.addConstraint(Sketcher.Constraint("Equal", 33, 6))
sketch5.addConstraint(Sketcher.Constraint("Equal", 35, 8))
sketch5.addConstraint(Sketcher.Constraint("Equal", 19, 10))
sketch5.addConstraint(Sketcher.Constraint("Equal", 4, 7))
sketch5.addConstraint(Sketcher.Constraint("Equal", 2, 9))
sketch5.addConstraint(Sketcher.Constraint("Diameter", 36, Q("4.2 mm")))
sketch5.addConstraint(Sketcher.Constraint("DistanceX", 36, 3, -1, 1, Q("50 mm")))
sketch5.addConstraint(Sketcher.Constraint("DistanceY", 0, 2, -1, 1, Q("4 mm")))
sketch5.addConstraint(Sketcher.Constraint("DistanceY", 4, 2, -1, 1, Q("10 mm")))
sketch5.addConstraint(Sketcher.Constraint("DistanceX", 5, 2, -1, 1, Q("40 mm")))
sketch5.addConstraint(Sketcher.Constraint("DistanceX", 5, 1, 5, 2, Q("5.36 mm")))
sketch5.addConstraint(Sketcher.Constraint("DistanceY", 2, 2, -1, 1, Q("8.2 mm")))
sketch5.addConstraint(Sketcher.Constraint("DistanceX", 1, 1, 1, 2, Q("4.590948 mm")))
sketch5.setExpression("Constraints[94]", "Params.sketch5_diameter")
sketch5.setExpression("Constraints[99]", "Params.sketch5_width")
pad5 = body5.newObject("PartDesign::Pad", "Pad004")
pad5.Profile = sketch5
pad5.setExpression("Length", "Params.pad5_length")
body6 = doc.addObject("PartDesign::Body", "Body005")

sketch6 = body6.newObject("Sketcher::SketchObject", "Sketch005")
sketch6.AttachmentSupport = (doc.getObject("XY_Plane005"), [""])
sketch6.MapMode = "FlatFace"
add_polygon(sketch6, [(-77.8, 8.2), (-79.6, 10), (-85, 10), (-85, 4.6), (-83.2, 2.8), (-83.2, 6.5), (-79, 2.3), (-79, -2.3), (-83.2, -6.5), (-83.2, -2.8), (-85, -4.6), (-85, -10), (-79.6, -10), (-77.8, -8.2), (-81.5, -8.2), (-77.3, -4), (-72.7, -4), (-68.5, -8.2), (-72.2, -8.2), (-70.4, -10), (-65, -10), (-65, -4.6), (-66.8, -2.8), (-66.8, -6.5), (-71, -2.3), (-71, 2.3), (-66.8, 6.5), (-66.8, 2.8), (-65, 4.6), (-65, 10), (-70.4, 10), (-72.2, 8.2), (-68.5, 8.2), (-72.7, 4), (-77.3, 4), (-81.5, 8.2)])
sketch6.addGeometry(Part.Circle(V(-75, 0, 0), V(0, 0, 1), 2.1), False)
sketch6.addConstraint(Sketcher.Constraint("Horizontal", 1))
sketch6.addConstraint(Sketcher.Constraint("Vertical", 2))
sketch6.addConstraint(Sketcher.Constraint("Vertical", 4))
sketch6.addConstraint(Sketcher.Constraint("Vertical", 6))
sketch6.addConstraint(Sketcher.Constraint("Vertical", 8))
sketch6.addConstraint(Sketcher.Constraint("Vertical", 10))
sketch6.addConstraint(Sketcher.Constraint("Horizontal", 11))
sketch6.addConstraint(Sketcher.Constraint("Horizontal", 13))
sketch6.addConstraint(Sketcher.Constraint("Horizontal", 15))
sketch6.addConstraint(Sketcher.Constraint("Horizontal", 17))
sketch6.addConstraint(Sketcher.Constraint("Horizontal", 19))
sketch6.addConstraint(Sketcher.Constraint("Vertical", 20))
sketch6.addConstraint(Sketcher.Constraint("Vertical", 22))
sketch6.addConstraint(Sketcher.Constraint("Vertical", 24))
sketch6.addConstraint(Sketcher.Constraint("Vertical", 26))
sketch6.addConstraint(Sketcher.Constraint("Vertical", 28))
sketch6.addConstraint(Sketcher.Constraint("Horizontal", 29))
sketch6.addConstraint(Sketcher.Constraint("Horizontal", 31))
sketch6.addConstraint(Sketcher.Constraint("Horizontal", 33))
sketch6.addConstraint(Sketcher.Constraint("Horizontal", 35))
sketch6.addConstraint(Sketcher.Constraint("Symmetric", 4, 2, 7, 2, -1))
sketch6.addConstraint(Sketcher.Constraint("Symmetric", 2, 2, 9, 2, -1))
sketch6.addConstraint(Sketcher.Constraint("Symmetric", 0, 2, 11, 2, -1))
sketch6.addConstraint(Sketcher.Constraint("Symmetric", 22, 2, 25, 2, -1))
sketch6.addConstraint(Sketcher.Constraint("Symmetric", 20, 2, 27, 2, -1))
sketch6.addConstraint(Sketcher.Constraint("Symmetric", 18, 2, 29, 2, -1))
sketch6.addConstraint(Sketcher.Constraint("Symmetric", 17, 2, 30, 2, -1))
sketch6.addConstraint(Sketcher.Constraint("Symmetric", 15, 2, 32, 2, -1))
sketch6.addConstraint(Sketcher.Constraint("Symmetric", 13, 2, 34, 2, -1))
sketch6.addConstraint(Sketcher.Constraint("PointOnObject", 36, 3, -1))
sketch6.addConstraint(Sketcher.Constraint("Parallel", 0, 3))
sketch6.addConstraint(Sketcher.Constraint("Parallel", 3, 5))
sketch6.addConstraint(Sketcher.Constraint("Perpendicular", 5, 7))
sketch6.addConstraint(Sketcher.Constraint("Parallel", 7, 9))
sketch6.addConstraint(Sketcher.Constraint("Parallel", 9, 12))
sketch6.addConstraint(Sketcher.Constraint("Parallel", 12, 14))
sketch6.addConstraint(Sketcher.Constraint("Perpendicular", 14, 16))
sketch6.addConstraint(Sketcher.Constraint("Parallel", 16, 18))
sketch6.addConstraint(Sketcher.Constraint("Parallel", 18, 21))
sketch6.addConstraint(Sketcher.Constraint("Parallel", 21, 23))
sketch6.addConstraint(Sketcher.Constraint("Perpendicular", 23, 25))
sketch6.addConstraint(Sketcher.Constraint("Parallel", 25, 27))
sketch6.addConstraint(Sketcher.Constraint("Parallel", 27, 30))
sketch6.addConstraint(Sketcher.Constraint("Parallel", 30, 32))
sketch6.addConstraint(Sketcher.Constraint("Perpendicular", 32, 34))
sketch6.addConstraint(Sketcher.Constraint("Horizontal", 13, 2, 16, 2))
sketch6.addConstraint(Sketcher.Constraint("Horizontal", 11, 2, 18, 2))
sketch6.addConstraint(Sketcher.Constraint("Horizontal", 9, 2, 20, 2))
sketch6.addConstraint(Sketcher.Constraint("Horizontal", 8, 2, 21, 2))
sketch6.addConstraint(Sketcher.Constraint("Horizontal", 7, 2, 22, 2))
sketch6.addConstraint(Sketcher.Constraint("Horizontal", 6, 2, 23, 2))
sketch6.addConstraint(Sketcher.Constraint("Equal", 13, 17))
sketch6.addConstraint(Sketcher.Constraint("Equal", 11, 19))
sketch6.addConstraint(Sketcher.Constraint("Equal", 29, 2))
sketch6.addConstraint(Sketcher.Constraint("Equal", 35, 4))
sketch6.addConstraint(Sketcher.Constraint("Equal", 33, 6))
sketch6.addConstraint(Sketcher.Constraint("Equal", 0, 3))
sketch6.addConstraint(Sketcher.Constraint("Equal", 7, 14))
sketch6.addConstraint(Sketcher.Constraint("Diameter", 36, Q("4.2 mm")))
sketch6.addConstraint(Sketcher.Constraint("DistanceX", 36, 3, -1, 1, Q("75 mm")))
sketch6.addConstraint(Sketcher.Constraint("DistanceY", -1, 1, 0, 2, Q("10 mm")))
sketch6.addConstraint(Sketcher.Constraint("DistanceX", 1, 2, -1, 1, Q("85 mm")))
sketch6.addConstraint(Sketcher.Constraint("DistanceX", 5, 2, -1, 1, Q("79 mm")))
sketch6.addConstraint(Sketcher.Constraint("DistanceX", 1, 2, 1, 1, Q("5.36 mm")))
sketch6.addConstraint(Sketcher.Constraint("DistanceX", 3, 2, -1, 1, Q("83.2 mm")))
sketch6.addConstraint(Sketcher.Constraint("DistanceX", 13, 2, 13, 1, Q("3.655474 mm")))
sketch6.setExpression("Constraints[94]", "Params.sketch6_diameter")
sketch6.setExpression("Constraints[99]", "Params.sketch6_width")
pad6 = body6.newObject("PartDesign::Pad", "Pad005")
pad6.Profile = sketch6
pad6.setExpression("Length", "Params.pad6_length")

doc.recompute()
